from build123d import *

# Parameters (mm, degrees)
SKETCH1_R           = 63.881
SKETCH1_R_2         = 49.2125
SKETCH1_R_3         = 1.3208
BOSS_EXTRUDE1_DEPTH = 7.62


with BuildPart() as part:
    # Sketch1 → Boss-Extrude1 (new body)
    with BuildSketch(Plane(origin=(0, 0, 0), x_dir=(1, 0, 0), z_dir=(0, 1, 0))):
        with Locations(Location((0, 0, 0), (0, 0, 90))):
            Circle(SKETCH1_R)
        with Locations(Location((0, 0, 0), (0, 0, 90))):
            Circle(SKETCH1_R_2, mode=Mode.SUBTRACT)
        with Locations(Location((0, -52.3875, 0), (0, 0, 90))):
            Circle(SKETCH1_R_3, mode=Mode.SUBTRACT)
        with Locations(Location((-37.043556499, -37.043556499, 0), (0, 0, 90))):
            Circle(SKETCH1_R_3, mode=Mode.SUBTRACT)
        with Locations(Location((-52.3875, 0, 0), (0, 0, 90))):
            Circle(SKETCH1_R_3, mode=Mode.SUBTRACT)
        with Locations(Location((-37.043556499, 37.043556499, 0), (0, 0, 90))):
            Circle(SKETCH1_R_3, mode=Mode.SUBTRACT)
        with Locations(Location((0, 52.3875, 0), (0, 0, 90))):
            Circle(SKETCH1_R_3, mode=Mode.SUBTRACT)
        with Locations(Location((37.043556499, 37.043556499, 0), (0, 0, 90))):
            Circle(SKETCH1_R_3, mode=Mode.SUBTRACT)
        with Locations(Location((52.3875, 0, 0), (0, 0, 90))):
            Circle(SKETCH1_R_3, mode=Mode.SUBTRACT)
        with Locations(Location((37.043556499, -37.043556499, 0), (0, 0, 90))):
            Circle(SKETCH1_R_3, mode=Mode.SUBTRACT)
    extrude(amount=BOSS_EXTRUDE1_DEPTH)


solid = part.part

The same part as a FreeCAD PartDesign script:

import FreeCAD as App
import Part
import Sketcher
from FreeCAD import Vector
Q = App.Units.Quantity

doc = App.newDocument("Part")
body = doc.addObject("PartDesign::Body", "Body")

# Sketch on XZ plane
sketch1 = body.newObject("Sketcher::SketchObject", "Sketch")
sketch1.AttachmentSupport = (doc.getObject("XZ_Plane"), [""])
sketch1.MapMode = "FlatFace"
sketch1.addGeometry([
    Part.Circle(Vector(0, 0, 0), Vector(0, 0, 1), 63.9),  # 0
    Part.Circle(Vector(37, 37, 0), Vector(0, 0, 1), 1.3),  # 1
    Part.Circle(Vector(0, 52.4, 0), Vector(0, 0, 1), 1.3),  # 2
    Part.Circle(Vector(52.4, 0, 0), Vector(0, 0, 1), 1.3),  # 3
    Part.Circle(Vector(37, -37, 0), Vector(0, 0, 1), 1.3),  # 4
    Part.Circle(Vector(-37, 37, 0), Vector(0, 0, 1), 1.3),  # 5
    Part.Circle(Vector(-52.4, 0, 0), Vector(0, 0, 1), 1.3),  # 6
    Part.Circle(Vector(0, 0, 0), Vector(0, 0, 1), 49.2),  # 7
    Part.Circle(Vector(0, -52.4, 0), Vector(0, 0, 1), 1.3),  # 8
    Part.Circle(Vector(-37, -37, 0), Vector(0, 0, 1), 1.3),  # 9
], False)
sketch1.addConstraint([
    Sketcher.Constraint("Coincident", 0, 3, -1, 1),
    Sketcher.Constraint("Coincident", 7, 3, -1, 1),
    Sketcher.Constraint("Equal", 1, 2),
    Sketcher.Constraint("Equal", 2, 3),
    Sketcher.Constraint("Equal", 3, 4),
    Sketcher.Constraint("Equal", 4, 5),
    Sketcher.Constraint("Equal", 5, 6),
    Sketcher.Constraint("Equal", 6, 8),
    Sketcher.Constraint("Equal", 8, 9),
    Sketcher.Constraint("Symmetric", 4, 3, 5, 3, -1, 1),
    Sketcher.Constraint("Symmetric", 3, 3, 6, 3, -1, 1),
    Sketcher.Constraint("Symmetric", 2, 3, 8, 3, -1, 1),
    Sketcher.Constraint("Symmetric", 1, 3, 9, 3, -1, 1),
    Sketcher.Constraint("Symmetric", 1, 3, 5, 3, -2),
    Sketcher.Constraint("PointOnObject", 2, 3, -2),
    Sketcher.Constraint("PointOnObject", 3, 3, -1),
    Sketcher.Constraint("Diameter", 0, Q("5.03 in")),
    Sketcher.Constraint("Diameter", 1, Q("0.104 in")),
    Sketcher.Constraint("Diameter", 7, Q("3.875 in")),
    Sketcher.Constraint("DistanceY", -1, 1, 2, 3, Q("2.0625 in")),
    Sketcher.Constraint("DistanceX", -1, 1, 3, 3, Q("2.0625 in")),
    Sketcher.Constraint("DistanceX", -1, 1, 1, 3, Q("37.043556 mm")),
    Sketcher.Constraint("DistanceY", -1, 1, 1, 3, Q("37.043556 mm")),
])
pad1 = body.newObject("PartDesign::Pad", "Pad")
pad1.Profile = sketch1
pad1.Length = Q("0.3 in")
pad1.Reversed = True

doc.recompute()
